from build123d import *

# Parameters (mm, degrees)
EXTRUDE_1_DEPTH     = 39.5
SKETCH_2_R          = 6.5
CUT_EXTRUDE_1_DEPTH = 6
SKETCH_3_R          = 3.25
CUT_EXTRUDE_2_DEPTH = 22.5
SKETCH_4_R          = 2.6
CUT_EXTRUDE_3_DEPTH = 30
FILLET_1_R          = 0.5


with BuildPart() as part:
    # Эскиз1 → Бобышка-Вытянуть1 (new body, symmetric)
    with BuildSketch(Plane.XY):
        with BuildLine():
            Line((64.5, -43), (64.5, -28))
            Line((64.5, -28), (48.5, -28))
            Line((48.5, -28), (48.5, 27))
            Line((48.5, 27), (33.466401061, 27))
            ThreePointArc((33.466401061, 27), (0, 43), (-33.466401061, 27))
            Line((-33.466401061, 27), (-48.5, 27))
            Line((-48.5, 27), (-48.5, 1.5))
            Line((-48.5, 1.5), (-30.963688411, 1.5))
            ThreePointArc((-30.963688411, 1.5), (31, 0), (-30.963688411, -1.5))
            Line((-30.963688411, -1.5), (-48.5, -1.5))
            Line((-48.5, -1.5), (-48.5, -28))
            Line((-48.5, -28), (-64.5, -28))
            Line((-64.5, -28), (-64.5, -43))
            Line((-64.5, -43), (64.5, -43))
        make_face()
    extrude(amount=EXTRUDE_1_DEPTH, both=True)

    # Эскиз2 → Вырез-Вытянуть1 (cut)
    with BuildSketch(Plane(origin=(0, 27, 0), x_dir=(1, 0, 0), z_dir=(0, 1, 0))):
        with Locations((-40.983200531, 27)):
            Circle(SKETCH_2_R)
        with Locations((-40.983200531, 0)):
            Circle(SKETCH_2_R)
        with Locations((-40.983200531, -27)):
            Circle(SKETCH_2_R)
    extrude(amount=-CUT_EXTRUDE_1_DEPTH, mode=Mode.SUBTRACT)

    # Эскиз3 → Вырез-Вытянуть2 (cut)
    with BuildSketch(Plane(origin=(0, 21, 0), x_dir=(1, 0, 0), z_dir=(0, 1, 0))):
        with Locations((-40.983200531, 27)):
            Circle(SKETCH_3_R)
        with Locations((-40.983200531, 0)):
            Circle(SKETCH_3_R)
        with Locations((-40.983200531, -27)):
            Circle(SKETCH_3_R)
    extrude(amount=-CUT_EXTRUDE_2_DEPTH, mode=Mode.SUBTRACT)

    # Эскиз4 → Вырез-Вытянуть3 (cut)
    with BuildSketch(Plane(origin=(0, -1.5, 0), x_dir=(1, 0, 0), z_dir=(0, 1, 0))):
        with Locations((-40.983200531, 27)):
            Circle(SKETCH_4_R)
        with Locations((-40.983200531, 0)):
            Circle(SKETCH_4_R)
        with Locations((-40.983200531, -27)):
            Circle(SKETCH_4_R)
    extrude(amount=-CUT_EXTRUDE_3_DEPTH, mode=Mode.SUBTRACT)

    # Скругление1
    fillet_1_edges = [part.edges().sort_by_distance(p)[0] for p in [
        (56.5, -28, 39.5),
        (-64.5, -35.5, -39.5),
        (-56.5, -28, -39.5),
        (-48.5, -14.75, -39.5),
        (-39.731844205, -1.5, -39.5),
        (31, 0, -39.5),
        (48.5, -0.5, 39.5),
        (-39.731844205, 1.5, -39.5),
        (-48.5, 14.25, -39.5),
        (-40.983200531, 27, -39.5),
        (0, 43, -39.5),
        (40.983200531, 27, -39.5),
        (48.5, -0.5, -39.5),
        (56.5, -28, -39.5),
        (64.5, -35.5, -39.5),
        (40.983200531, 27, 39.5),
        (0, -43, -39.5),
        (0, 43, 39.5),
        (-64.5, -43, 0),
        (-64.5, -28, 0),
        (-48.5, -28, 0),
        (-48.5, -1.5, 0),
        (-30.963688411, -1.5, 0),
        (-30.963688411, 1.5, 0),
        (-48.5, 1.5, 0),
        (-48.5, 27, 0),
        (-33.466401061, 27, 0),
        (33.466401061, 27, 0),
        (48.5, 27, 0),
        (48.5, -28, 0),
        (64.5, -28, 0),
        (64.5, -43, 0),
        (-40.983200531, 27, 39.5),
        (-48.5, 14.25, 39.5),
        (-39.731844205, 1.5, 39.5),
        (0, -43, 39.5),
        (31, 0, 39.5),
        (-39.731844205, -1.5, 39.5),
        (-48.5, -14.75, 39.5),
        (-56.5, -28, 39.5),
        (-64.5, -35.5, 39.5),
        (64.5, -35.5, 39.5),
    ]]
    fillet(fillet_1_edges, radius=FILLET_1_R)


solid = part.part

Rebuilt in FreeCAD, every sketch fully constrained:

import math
import FreeCAD as App
import Part
import Sketcher

V = App.Vector
Q = App.Units.Quantity


def edges_at(feature, points):
    """Names of the edges that pass closest to the given points."""
    edges = feature.Shape.Edges
    near = lambda p: min(range(len(edges)), key=lambda i: edges[i].distToShape(Part.Vertex(*p))[0])
    return sorted({f"Edge{near(p) + 1}" for p in points})

doc = App.newDocument("Part")
body = doc.addObject("PartDesign::Body", "Body")

# Sketch on XY plane
sketch1 = doc.addObject("Sketcher::SketchObject", "Sketch")
body.addObject(sketch1)
sketch1.AttachmentSupport = (doc.XY_Plane, [""])
sketch1.MapMode = "FlatFace"
sketch1.addGeometry([
    Part.LineSegment(V(64.5, -43, 0), V(64.5, -28, 0)),  # 0
    Part.LineSegment(V(64.5, -28, 0), V(48.5, -28, 0)),  # 1
    Part.LineSegment(V(48.5, -28, 0), V(48.5, 27, 0)),  # 2
    Part.LineSegment(V(48.5, 27, 0), V(33.5, 27, 0)),  # 3
    Part.ArcOfCircle(Part.Circle(V(0, 0, 0), V(0, 0, 1), 43), math.radians(39), math.radians(141)),  # 4
    Part.LineSegment(V(-33.5, 27, 0), V(-48.5, 27, 0)),  # 5
    Part.LineSegment(V(-48.5, 27, 0), V(-48.5, 1.5, 0)),  # 6
    Part.LineSegment(V(-48.5, 1.5, 0), V(-31, 1.5, 0)),  # 7
    Part.ArcOfCircle(Part.Circle(V(0, 0, 0), V(0, 0, 1), 31), math.radians(-177), math.radians(177)),  # 8
    Part.LineSegment(V(-31, -1.5, 0), V(-48.5, -1.5, 0)),  # 9
    Part.LineSegment(V(-48.5, -1.5, 0), V(-48.5, -28, 0)),  # 10
    Part.LineSegment(V(-48.5, -28, 0), V(-64.5, -28, 0)),  # 11
    Part.LineSegment(V(-64.5, -28, 0), V(-64.5, -43, 0)),  # 12
    Part.LineSegment(V(-64.5, -43, 0), V(64.5, -43, 0)),  # 13
], False)
sketch1.addConstraint([
    Sketcher.Constraint("Coincident", 0, 2, 1, 1),
    Sketcher.Constraint("Coincident", 1, 2, 2, 1),
    Sketcher.Constraint("Coincident", 2, 2, 3, 1),
    Sketcher.Constraint("Coincident", 3, 2, 4, 1),
    Sketcher.Constraint("Coincident", 4, 2, 5, 1),
    Sketcher.Constraint("Coincident", 5, 2, 6, 1),
    Sketcher.Constraint("Coincident", 6, 2, 7, 1),
    Sketcher.Constraint("Coincident", 7, 2, 8, 2),
    Sketcher.Constraint("Coincident", 8, 1, 9, 1),
    Sketcher.Constraint("Coincident", 9, 2, 10, 1),
    Sketcher.Constraint("Coincident", 10, 2, 11, 1),
    Sketcher.Constraint("Coincident", 11, 2, 12, 1),
    Sketcher.Constraint("Coincident", 12, 2, 13, 1),
    Sketcher.Constraint("Coincident", 13, 2, 0, 1),
    Sketcher.Constraint("Vertical", 0),
    Sketcher.Constraint("Horizontal", 1),
    Sketcher.Constraint("Vertical", 2),
    Sketcher.Constraint("Horizontal", 3),
    Sketcher.Constraint("Horizontal", 5),
    Sketcher.Constraint("Vertical", 6),
    Sketcher.Constraint("Horizontal", 7),
    Sketcher.Constraint("Horizontal", 9),
    Sketcher.Constraint("Vertical", 10),
    Sketcher.Constraint("Horizontal", 11),
    Sketcher.Constraint("Vertical", 12),
    Sketcher.Constraint("Horizontal", 13),
    Sketcher.Constraint("Coincident", 4, 3, -1, 1),
    Sketcher.Constraint("Coincident", 8, 3, -1, 1),
    Sketcher.Constraint("Symmetric", 2, 2, 5, 2, -2),
    Sketcher.Constraint("Symmetric", 1, 2, 10, 2, -2),
    Sketcher.Constraint("Vertical", 7, 2, 8, 1),
    Sketcher.Constraint("Equal", 1, 11),
    Sketcher.Constraint("Radius", 4, Q("43 mm")),
    Sketcher.Constraint("Radius", 8, Q("31 mm")),
    Sketcher.Constraint("DistanceX", 1, 2, 1, 1, Q("16 mm")),
    Sketcher.Constraint("DistanceX", 13, 1, 13, 2, Q("129 mm")),
    Sketcher.Constraint("DistanceY", 0, 1, 0, 2, Q("15 mm")),
    Sketcher.Constraint("DistanceY", 2, 1, 2, 2, Q("55 mm")),
    Sketcher.Constraint("DistanceY", 6, 2, 6, 1, Q("25.5 mm")),
    Sketcher.Constraint("DistanceY", 10, 2, 10, 1, Q("26.5 mm")),
])
pad1 = doc.addObject("PartDesign::Pad", "Pad")
body.addObject(pad1)
pad1.Profile = sketch1
pad1.Length = 79
pad1.Midplane = True

# Sketch on XZ plane
sketch2 = doc.addObject("Sketcher::SketchObject", "Sketch001")
body.addObject(sketch2)
sketch2.AttachmentSupport = (doc.XZ_Plane, [""])
sketch2.MapMode = "FlatFace"
sketch2.AttachmentOffset = App.Placement(V(0, 0, -27), App.Rotation())
sketch2.addGeometry([
    Part.Circle(V(-41, -27, 0), V(0, 0, 1), 6),
    Part.Circle(V(-41, 0, 0), V(0, 0, 1), 6),
    Part.Circle(V(-41, 27, 0), V(0, 0, 1), 6),
], False)
sketch2.addConstraint([
    Sketcher.Constraint("Equal", 0, 1),
    Sketcher.Constraint("Equal", 1, 2),
    Sketcher.Constraint("Symmetric", 0, 3, 2, 3, -1),
    Sketcher.Constraint("PointOnObject", 1, 3, -1),
    Sketcher.Constraint("Vertical", 0, 3, 1, 3),
    Sketcher.Constraint("Diameter", 0, Q("13 mm")),
    Sketcher.Constraint("DistanceY", 0, 3, -1, 1, Q("27 mm")),
    Sketcher.Constraint("DistanceX", 0, 3, -1, 1, Q("40.983201 mm")),
])
pocket1 = doc.addObject("PartDesign::Pocket", "Pocket")
body.addObject(pocket1)
pocket1.Profile = sketch2
pocket1.Length = 6
pocket1.Reversed = True

# Sketch on XZ plane
sketch3 = doc.addObject("Sketcher::SketchObject", "Sketch002")
body.addObject(sketch3)
sketch3.AttachmentSupport = (doc.XZ_Plane, [""])
sketch3.MapMode = "FlatFace"
sketch3.AttachmentOffset = App.Placement(V(0, 0, -21), App.Rotation())
sketch3.addGeometry([
    Part.Circle(V(-41, -27, 0), V(0, 0, 1), 3.2),
    Part.Circle(V(-41, 0, 0), V(0, 0, 1), 3.2),
    Part.Circle(V(-41, 27, 0), V(0, 0, 1), 3.2),
], False)
sketch3.addConstraint([
    Sketcher.Constraint("Equal", 0, 1),
    Sketcher.Constraint("Equal", 1, 2),
    Sketcher.Constraint("Symmetric", 0, 3, 2, 3, -1),
    Sketcher.Constraint("PointOnObject", 1, 3, -1),
    Sketcher.Constraint("Vertical", 0, 3, 1, 3),
    Sketcher.Constraint("Diameter", 0, Q("6.5 mm")),
    Sketcher.Constraint("DistanceY", 0, 3, -1, 1, Q("27 mm")),
    Sketcher.Constraint("DistanceX", 0, 3, -1, 1, Q("40.983201 mm")),
])
pocket2 = doc.addObject("PartDesign::Pocket", "Pocket001")
body.addObject(pocket2)
pocket2.Profile = sketch3
pocket2.Length = 22.5
pocket2.Reversed = True

# Sketch on XZ plane
sketch4 = doc.addObject("Sketcher::SketchObject", "Sketch003")
body.addObject(sketch4)
sketch4.AttachmentSupport = (doc.XZ_Plane, [""])
sketch4.MapMode = "FlatFace"
sketch4.AttachmentOffset = App.Placement(V(0, 0, 1.5), App.Rotation())
sketch4.addGeometry([
    Part.Circle(V(-41, -27, 0), V(0, 0, 1), 2.6),
    Part.Circle(V(-41, 0, 0), V(0, 0, 1), 2.6),
    Part.Circle(V(-41, 27, 0), V(0, 0, 1), 2.6),
], False)
sketch4.addConstraint([
    Sketcher.Constraint("Equal", 0, 1),
    Sketcher.Constraint("Equal", 1, 2),
    Sketcher.Constraint("Symmetric", 0, 3, 2, 3, -1),
    Sketcher.Constraint("PointOnObject", 1, 3, -1),
    Sketcher.Constraint("Vertical", 0, 3, 1, 3),
    Sketcher.Constraint("Diameter", 0, Q("5.2 mm")),
    Sketcher.Constraint("DistanceY", 0, 3, -1, 1, Q("27 mm")),
    Sketcher.Constraint("DistanceX", 0, 3, -1, 1, Q("40.983201 mm")),
])
pocket3 = doc.addObject("PartDesign::Pocket", "Pocket002")
body.addObject(pocket3)
pocket3.Profile = sketch4
pocket3.Length = 30
pocket3.Reversed = True
doc.recompute()

fillet = doc.addObject("PartDesign::Fillet", "Fillet")
body.addObject(fillet)
fillet.Base = (pocket3, edges_at(pocket3, [
    (56.5, -28, 39.5),
    (-64.5, -35.5, -39.5),
    (-56.5, -28, -39.5),
    (-48.5, -14.75, -39.5),
    (-39.732, -1.5, -39.5),
    (31, 0, -39.5),
    (48.5, -0.5, 39.5),
    (-39.732, 1.5, -39.5),
    (-48.5, 14.25, -39.5),
    (-40.983, 27, -39.5),
    (0, 43, -39.5),
    (40.983, 27, -39.5),
    (48.5, -0.5, -39.5),
    (56.5, -28, -39.5),
    (64.5, -35.5, -39.5),
    (40.983, 27, 39.5),
    (0, -43, -39.5),
    (0, 43, 39.5),
    (-64.5, -43, 0),
    (-64.5, -28, 0),
    (-48.5, -28, 0),
    (-48.5, -1.5, 0),
    (-30.964, -1.5, 0),
    (-30.964, 1.5, 0),
    (-48.5, 1.5, 0),
    (-48.5, 27, 0),
    (-33.466, 27, 0),
    (33.466, 27, 0),
    (48.5, 27, 0),
    (48.5, -28, 0),
    (64.5, -28, 0),
    (64.5, -43, 0),
    (-40.983, 27, 39.5),
    (-48.5, 14.25, 39.5),
    (-39.732, 1.5, 39.5),
    (0, -43, 39.5),
    (31, 0, 39.5),
    (-39.732, -1.5, 39.5),
    (-48.5, -14.75, 39.5),
    (-56.5, -28, 39.5),
    (-64.5, -35.5, 39.5),
    (64.5, -35.5, 39.5),
]))
fillet.Radius = 0.5

doc.recompute()
